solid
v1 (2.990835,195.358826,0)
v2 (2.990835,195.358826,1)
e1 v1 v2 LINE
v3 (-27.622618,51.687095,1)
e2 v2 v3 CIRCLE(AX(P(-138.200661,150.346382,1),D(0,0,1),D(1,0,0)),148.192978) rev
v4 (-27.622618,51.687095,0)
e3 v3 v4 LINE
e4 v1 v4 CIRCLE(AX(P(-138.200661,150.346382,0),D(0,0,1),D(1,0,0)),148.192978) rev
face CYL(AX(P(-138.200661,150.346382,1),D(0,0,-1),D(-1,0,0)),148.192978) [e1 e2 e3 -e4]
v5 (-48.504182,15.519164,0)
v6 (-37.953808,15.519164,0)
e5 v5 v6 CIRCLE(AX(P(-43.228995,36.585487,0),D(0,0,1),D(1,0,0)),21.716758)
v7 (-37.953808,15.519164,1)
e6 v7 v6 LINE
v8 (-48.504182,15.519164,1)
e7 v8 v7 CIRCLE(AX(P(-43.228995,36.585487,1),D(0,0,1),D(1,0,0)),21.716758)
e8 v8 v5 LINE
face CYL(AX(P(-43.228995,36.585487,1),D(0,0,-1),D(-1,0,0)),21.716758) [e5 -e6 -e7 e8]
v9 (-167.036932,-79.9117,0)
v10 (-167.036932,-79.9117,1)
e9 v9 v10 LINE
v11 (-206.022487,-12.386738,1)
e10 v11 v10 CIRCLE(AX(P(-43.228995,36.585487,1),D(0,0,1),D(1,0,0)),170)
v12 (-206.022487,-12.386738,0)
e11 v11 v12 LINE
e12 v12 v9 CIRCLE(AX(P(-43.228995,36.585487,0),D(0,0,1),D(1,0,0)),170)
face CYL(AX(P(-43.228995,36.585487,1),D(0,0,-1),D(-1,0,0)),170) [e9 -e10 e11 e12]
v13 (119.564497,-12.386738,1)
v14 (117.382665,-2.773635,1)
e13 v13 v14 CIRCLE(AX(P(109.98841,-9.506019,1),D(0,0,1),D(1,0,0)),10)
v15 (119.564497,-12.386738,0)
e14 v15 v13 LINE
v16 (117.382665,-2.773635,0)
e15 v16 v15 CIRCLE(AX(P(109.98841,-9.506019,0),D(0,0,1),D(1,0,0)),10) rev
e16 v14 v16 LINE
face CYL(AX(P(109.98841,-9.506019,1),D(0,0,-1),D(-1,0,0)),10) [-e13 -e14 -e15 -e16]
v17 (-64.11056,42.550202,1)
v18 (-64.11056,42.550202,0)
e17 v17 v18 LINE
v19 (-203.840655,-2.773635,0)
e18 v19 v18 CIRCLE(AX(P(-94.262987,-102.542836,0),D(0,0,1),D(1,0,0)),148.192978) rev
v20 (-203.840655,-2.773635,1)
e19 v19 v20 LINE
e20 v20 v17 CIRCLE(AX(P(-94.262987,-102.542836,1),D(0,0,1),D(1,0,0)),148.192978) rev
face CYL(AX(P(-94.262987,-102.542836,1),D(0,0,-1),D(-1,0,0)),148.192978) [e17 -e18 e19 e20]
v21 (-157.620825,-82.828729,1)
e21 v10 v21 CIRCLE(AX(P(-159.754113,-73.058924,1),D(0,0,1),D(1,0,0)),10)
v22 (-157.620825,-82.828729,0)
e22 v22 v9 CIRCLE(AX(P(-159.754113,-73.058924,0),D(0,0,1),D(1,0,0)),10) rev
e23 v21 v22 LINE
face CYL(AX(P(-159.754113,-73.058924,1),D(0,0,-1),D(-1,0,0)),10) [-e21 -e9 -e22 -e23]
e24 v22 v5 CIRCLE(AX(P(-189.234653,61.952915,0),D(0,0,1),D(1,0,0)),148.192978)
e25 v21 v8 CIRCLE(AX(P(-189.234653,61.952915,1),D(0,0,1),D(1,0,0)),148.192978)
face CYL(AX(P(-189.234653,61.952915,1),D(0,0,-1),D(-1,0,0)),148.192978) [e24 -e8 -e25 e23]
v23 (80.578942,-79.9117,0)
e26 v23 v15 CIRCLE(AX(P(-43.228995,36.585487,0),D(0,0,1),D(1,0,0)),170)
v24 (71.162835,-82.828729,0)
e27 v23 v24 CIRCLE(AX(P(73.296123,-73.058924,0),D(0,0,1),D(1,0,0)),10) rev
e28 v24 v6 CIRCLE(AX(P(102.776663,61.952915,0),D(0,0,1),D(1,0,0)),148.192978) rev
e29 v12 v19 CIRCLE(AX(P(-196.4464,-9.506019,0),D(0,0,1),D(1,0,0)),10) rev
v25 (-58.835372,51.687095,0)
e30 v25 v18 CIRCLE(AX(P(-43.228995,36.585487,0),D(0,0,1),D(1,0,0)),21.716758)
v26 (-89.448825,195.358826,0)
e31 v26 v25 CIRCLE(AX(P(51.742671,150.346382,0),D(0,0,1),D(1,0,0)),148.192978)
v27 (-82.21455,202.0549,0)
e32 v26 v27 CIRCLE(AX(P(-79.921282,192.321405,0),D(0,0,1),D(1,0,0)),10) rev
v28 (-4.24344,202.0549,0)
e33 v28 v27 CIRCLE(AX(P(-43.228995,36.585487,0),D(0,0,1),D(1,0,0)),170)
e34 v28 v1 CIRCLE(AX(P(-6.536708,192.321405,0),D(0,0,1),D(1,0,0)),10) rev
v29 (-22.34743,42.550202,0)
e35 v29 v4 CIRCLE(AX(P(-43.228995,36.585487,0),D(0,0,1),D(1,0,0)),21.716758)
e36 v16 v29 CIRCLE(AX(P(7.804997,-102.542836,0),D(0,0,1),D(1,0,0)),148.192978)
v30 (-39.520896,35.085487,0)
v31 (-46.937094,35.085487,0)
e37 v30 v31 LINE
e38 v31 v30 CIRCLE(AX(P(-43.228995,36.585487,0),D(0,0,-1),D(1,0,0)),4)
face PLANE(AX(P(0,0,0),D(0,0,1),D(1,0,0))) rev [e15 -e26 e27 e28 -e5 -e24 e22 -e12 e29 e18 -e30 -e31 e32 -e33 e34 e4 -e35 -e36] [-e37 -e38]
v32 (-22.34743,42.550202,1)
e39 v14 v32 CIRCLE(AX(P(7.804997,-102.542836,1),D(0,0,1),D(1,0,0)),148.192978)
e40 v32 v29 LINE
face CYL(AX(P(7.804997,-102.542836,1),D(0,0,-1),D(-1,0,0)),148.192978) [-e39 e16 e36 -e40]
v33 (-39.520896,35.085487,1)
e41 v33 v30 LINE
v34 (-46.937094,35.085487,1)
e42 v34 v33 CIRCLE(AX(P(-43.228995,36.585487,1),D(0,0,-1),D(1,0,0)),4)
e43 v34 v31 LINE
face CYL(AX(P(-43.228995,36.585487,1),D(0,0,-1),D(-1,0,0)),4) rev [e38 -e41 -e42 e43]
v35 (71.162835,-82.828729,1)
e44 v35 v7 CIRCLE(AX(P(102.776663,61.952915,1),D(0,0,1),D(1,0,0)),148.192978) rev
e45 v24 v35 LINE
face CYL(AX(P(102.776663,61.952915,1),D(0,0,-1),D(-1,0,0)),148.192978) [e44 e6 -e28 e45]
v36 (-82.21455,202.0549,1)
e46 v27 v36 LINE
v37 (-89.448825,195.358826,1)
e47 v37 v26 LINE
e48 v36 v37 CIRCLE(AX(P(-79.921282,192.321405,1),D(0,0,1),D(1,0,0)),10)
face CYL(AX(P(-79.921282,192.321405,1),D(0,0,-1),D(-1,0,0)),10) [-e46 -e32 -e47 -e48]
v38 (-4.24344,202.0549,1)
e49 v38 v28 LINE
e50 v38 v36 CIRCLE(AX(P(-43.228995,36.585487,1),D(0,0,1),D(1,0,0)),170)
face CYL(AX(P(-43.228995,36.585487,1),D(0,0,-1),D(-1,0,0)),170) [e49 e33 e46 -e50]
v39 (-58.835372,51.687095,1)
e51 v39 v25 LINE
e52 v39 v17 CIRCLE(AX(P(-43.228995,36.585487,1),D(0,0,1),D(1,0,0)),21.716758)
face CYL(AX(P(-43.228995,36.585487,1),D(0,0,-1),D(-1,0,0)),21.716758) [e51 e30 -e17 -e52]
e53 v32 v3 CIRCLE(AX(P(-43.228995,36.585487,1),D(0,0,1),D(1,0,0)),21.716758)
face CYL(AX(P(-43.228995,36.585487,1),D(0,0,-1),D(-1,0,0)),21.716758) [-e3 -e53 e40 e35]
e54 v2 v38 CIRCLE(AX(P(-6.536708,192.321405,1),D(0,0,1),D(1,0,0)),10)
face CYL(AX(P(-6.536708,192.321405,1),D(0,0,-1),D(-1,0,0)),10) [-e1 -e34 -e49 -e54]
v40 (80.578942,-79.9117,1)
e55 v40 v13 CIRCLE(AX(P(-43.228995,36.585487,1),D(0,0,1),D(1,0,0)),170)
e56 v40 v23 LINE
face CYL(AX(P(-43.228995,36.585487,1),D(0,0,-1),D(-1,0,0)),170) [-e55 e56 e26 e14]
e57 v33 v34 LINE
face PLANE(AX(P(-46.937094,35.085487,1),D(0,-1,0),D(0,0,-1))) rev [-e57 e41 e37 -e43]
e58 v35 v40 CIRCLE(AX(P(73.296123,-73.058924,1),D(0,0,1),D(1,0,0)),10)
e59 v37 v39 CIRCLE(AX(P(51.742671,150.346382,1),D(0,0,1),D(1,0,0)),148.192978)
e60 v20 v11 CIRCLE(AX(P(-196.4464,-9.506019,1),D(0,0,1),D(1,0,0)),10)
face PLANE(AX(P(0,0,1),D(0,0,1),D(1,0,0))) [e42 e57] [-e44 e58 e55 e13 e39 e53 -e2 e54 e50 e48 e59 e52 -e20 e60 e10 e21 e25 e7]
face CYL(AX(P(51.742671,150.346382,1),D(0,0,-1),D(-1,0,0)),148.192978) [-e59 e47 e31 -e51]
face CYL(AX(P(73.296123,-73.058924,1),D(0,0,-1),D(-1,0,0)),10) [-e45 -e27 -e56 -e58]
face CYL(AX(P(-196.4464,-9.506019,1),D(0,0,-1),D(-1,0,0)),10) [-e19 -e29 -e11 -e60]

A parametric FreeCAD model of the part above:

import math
import FreeCAD as App
import Part
import Sketcher

V = App.Vector


def edges_at(feature, points):
    """Names of the edges that pass closest to the given points."""
    edges = feature.Shape.Edges
    near = lambda p: min(range(len(edges)), key=lambda i: edges[i].distToShape(Part.Vertex(*p))[0])
    return sorted({f"Edge{near(p) + 1}" for p in points})

doc = App.newDocument("Part")
body = doc.addObject("PartDesign::Body", "Body")

# Sketch on XY plane
sketch1 = doc.addObject("Sketcher::SketchObject", "Sketch")
body.addObject(sketch1)
sketch1.AttachmentSupport = (doc.XY_Plane, [""])
sketch1.MapMode = "FlatFace"
sketch1.addGeometry(Part.ArcOfCircle(Part.Circle(V(-94.262987, -102.542836, 0), V(0, 0, 1), 148.192978), math.radians(78.260208), math.radians(139.856337)), False)
sketch1.addGeometry(Part.ArcOfCircle(Part.Circle(V(-43.228995, 36.585487, 0), V(0, 0, 1), 170), math.radians(-165.143663), math.radians(-134.856337)), False)
sketch1.addGeometry(Part.ArcOfCircle(Part.Circle(V(-189.234653, 61.952915, 0), V(0, 0, 1), 148.192978), math.radians(-79.856337), math.radians(-18.260208)), False)
sketch1.addGeometry(Part.ArcOfCircle(Part.Circle(V(-43.228995, 36.585487, 0), V(0, 0, 1), 21.716758), math.radians(-104.058273), math.radians(-75.941727)), False)
sketch1.addGeometry(Part.ArcOfCircle(Part.Circle(V(102.776663, 61.952915, 0), V(0, 0, 1), 148.192978), math.radians(-161.739792), math.radians(-100.143663)), False)
sketch1.addGeometry(Part.ArcOfCircle(Part.Circle(V(-43.228995, 36.585487, 0), V(0, 0, 1), 170), math.radians(-45.143663), math.radians(-14.856337)), False)
sketch1.addGeometry(Part.ArcOfCircle(Part.Circle(V(7.804997, -102.542836, 0), V(0, 0, 1), 148.192978), math.radians(40.143663), math.radians(101.739792)), False)
sketch1.addGeometry(Part.ArcOfCircle(Part.Circle(V(-43.228995, 36.585487, 0), V(0, 0, 1), 21.716758), math.radians(15.941727), math.radians(44.058273)), False)
sketch1.addGeometry(Part.ArcOfCircle(Part.Circle(V(-138.200661, 150.346382, 0), V(0, 0, 1), 148.192978), math.radians(-41.739792), math.radians(19.856337)), False)
sketch1.addGeometry(Part.ArcOfCircle(Part.Circle(V(-43.228995, 36.585487, 0), V(0, 0, 1), 170), math.radians(74.856337), math.radians(90)), False)
sketch1.addGeometry(Part.ArcOfCircle(Part.Circle(V(-43.228995, 36.585487, 0), V(0, 0, 1), 170), math.radians(90), math.radians(105.143663)), False)
sketch1.addGeometry(Part.ArcOfCircle(Part.Circle(V(51.742671, 150.346382, 0), V(0, 0, 1), 148.192978), math.radians(160.143663), math.radians(221.739792)), False)
sketch1.addGeometry(Part.ArcOfCircle(Part.Circle(V(-43.228995, 36.585487, 0), V(0, 0, 1), 21.716758), math.radians(135.941727), math.radians(164.058273)), False)
sketch1.addConstraint(Sketcher.Constraint("Coincident", 0, 2, 1, 1))
sketch1.addConstraint(Sketcher.Constraint("Coincident", 1, 2, 2, 1))
sketch1.addConstraint(Sketcher.Constraint("Coincident", 2, 2, 3, 1))
sketch1.addConstraint(Sketcher.Constraint("Coincident", 3, 2, 4, 1))
sketch1.addConstraint(Sketcher.Constraint("Coincident", 4, 2, 5, 1))
sketch1.addConstraint(Sketcher.Constraint("Coincident", 5, 2, 6, 1))
sketch1.addConstraint(Sketcher.Constraint("Coincident", 6, 2, 7, 1))
sketch1.addConstraint(Sketcher.Constraint("Coincident", 7, 2, 8, 1))
sketch1.addConstraint(Sketcher.Constraint("Coincident", 8, 2, 9, 1))
sketch1.addConstraint(Sketcher.Constraint("Coincident", 9, 2, 10, 1))
sketch1.addConstraint(Sketcher.Constraint("Coincident", 10, 2, 11, 1))
sketch1.addConstraint(Sketcher.Constraint("Coincident", 11, 2, 12, 1))
sketch1.addConstraint(Sketcher.Constraint("Coincident", 12, 2, 0, 1))
sketch1.addConstraint(Sketcher.Constraint("Coincident", 3, 3, 1, 3))
sketch1.addConstraint(Sketcher.Constraint("Coincident", 5, 3, 1, 3))
sketch1.addConstraint(Sketcher.Constraint("Coincident", 7, 3, 1, 3))
sketch1.addConstraint(Sketcher.Constraint("Coincident", 9, 3, 1, 3))
sketch1.addConstraint(Sketcher.Constraint("Coincident", 10, 3, 1, 3))
sketch1.addConstraint(Sketcher.Constraint("Coincident", 12, 3, 1, 3))
sketch1.addConstraint(Sketcher.Constraint("Radius", 1, 170.0))
sketch1.addConstraint(Sketcher.Constraint("Radius", 5, 170.0))
sketch1.addConstraint(Sketcher.Constraint("Radius", 9, 170.0))
sketch1.addConstraint(Sketcher.Constraint("Radius", 0, 148.192978))
sketch1.addConstraint(Sketcher.Constraint("Radius", 2, 148.192978))
sketch1.addConstraint(Sketcher.Constraint("Radius", 3, 21.716758))
sketch1.addConstraint(Sketcher.Constraint("Radius", 4, 148.192978))
sketch1.addConstraint(Sketcher.Constraint("Radius", 6, 148.192978))
sketch1.addConstraint(Sketcher.Constraint("Radius", 7, 21.716758))
sketch1.addConstraint(Sketcher.Constraint("Radius", 8, 148.192978))
sketch1.addConstraint(Sketcher.Constraint("Radius", 11, 148.192978))
sketch1.addConstraint(Sketcher.Constraint("Radius", 12, 21.716758))
sketch1.addConstraint(Sketcher.Constraint("DistanceX", 8, 3, -1, 1, 138.200661))
sketch1.addConstraint(Sketcher.Constraint("DistanceX", -1, 1, 11, 3, 51.742671))
sketch1.addConstraint(Sketcher.Constraint("DistanceY", 0, 2, -1, 1, 7.001881))
sketch1.addConstraint(Sketcher.Constraint("DistanceX", 1, 2, -1, 1, 163.135362))
sketch1.addConstraint(Sketcher.Constraint("DistanceX", -1, 1, 4, 2, 76.677372))
sketch1.addConstraint(Sketcher.Constraint("DistanceY", 5, 2, -1, 1, 7.001881))
sketch1.addConstraint(Sketcher.Constraint("DistanceX", 6, 2, -1, 1, 22.34743))
sketch1.addConstraint(Sketcher.Constraint("DistanceY", -1, 1, 8, 2, 200.682038))
sketch1.addConstraint(Sketcher.Constraint("DistanceY", -1, 1, 10, 2, 200.682038))
sketch1.addConstraint(Sketcher.Constraint("DistanceX", 12, 2, -1, 1, 64.11056))
sketch1.addConstraint(Sketcher.Constraint("DistanceX", 2, 3, 1, 3, 146.005658))
sketch1.addConstraint(Sketcher.Constraint("DistanceY", 0, 3, 2, 3, 164.495751))
sketch1.addConstraint(Sketcher.Constraint("DistanceX", 1, 3, 4, 3, 146.005658))
sketch1.addConstraint(Sketcher.Constraint("DistanceX", 0, 3, 4, 3, 197.03965))
sketch1.addConstraint(Sketcher.Constraint("DistanceX", 9, 2, 8, 2, 44.41083))
pad1 = doc.addObject("PartDesign::Pad", "Pad")
body.addObject(pad1)
pad1.Profile = sketch1
pad1.Length = 1

# Sketch on XY plane
sketch2 = doc.addObject("Sketcher::SketchObject", "Sketch001")
body.addObject(sketch2)
sketch2.AttachmentSupport = (doc.XY_Plane, [""])
sketch2.MapMode = "FlatFace"
sketch2.addGeometry(Part.LineSegment(V(-39.5, 35.1, 0), V(-46.9, 35.1, 0)), False)
sketch2.addGeometry(Part.ArcOfCircle(Part.Circle(V(-43.2, 36.6, 0), V(0, 0, 1), 4), math.radians(-22), math.radians(202)), False)
sketch2.addConstraint(Sketcher.Constraint("Coincident", 0, 1, 1, 1))
sketch2.addConstraint(Sketcher.Constraint("Coincident", 1, 2, 0, 2))
sketch2.addConstraint(Sketcher.Constraint("Horizontal", 0))
sketch2.addConstraint(Sketcher.Constraint("Radius", 1, 4.0))
sketch2.addConstraint(Sketcher.Constraint("DistanceY", 0, 1, 1, 3, 1.5))
sketch2.addConstraint(Sketcher.Constraint("DistanceX", 1, 3, -1, 1, 43.228995))
sketch2.addConstraint(Sketcher.Constraint("DistanceY", -1, 1, 1, 3, 36.585487))
pocket1 = doc.addObject("PartDesign::Pocket", "Pocket")
body.addObject(pocket1)
pocket1.Profile = sketch2
pocket1.Type = "ThroughAll"
pocket1.Reversed = True
doc.recompute()

fillet = doc.addObject("PartDesign::Fillet", "Fillet")
body.addObject(fillet)
fillet.Base = (pocket1, edges_at(pocket1, [
    (-87.64, 200.682, 0.5),
    (1.182, 200.682, 0.5),
    (121.088, -7.002, 0.5),
    (76.677, -83.924, 0.5),
    (-163.135, -83.924, 0.5),
    (-207.546, -7.002, 0.5),
]))
fillet.Radius = 10

doc.recompute()
